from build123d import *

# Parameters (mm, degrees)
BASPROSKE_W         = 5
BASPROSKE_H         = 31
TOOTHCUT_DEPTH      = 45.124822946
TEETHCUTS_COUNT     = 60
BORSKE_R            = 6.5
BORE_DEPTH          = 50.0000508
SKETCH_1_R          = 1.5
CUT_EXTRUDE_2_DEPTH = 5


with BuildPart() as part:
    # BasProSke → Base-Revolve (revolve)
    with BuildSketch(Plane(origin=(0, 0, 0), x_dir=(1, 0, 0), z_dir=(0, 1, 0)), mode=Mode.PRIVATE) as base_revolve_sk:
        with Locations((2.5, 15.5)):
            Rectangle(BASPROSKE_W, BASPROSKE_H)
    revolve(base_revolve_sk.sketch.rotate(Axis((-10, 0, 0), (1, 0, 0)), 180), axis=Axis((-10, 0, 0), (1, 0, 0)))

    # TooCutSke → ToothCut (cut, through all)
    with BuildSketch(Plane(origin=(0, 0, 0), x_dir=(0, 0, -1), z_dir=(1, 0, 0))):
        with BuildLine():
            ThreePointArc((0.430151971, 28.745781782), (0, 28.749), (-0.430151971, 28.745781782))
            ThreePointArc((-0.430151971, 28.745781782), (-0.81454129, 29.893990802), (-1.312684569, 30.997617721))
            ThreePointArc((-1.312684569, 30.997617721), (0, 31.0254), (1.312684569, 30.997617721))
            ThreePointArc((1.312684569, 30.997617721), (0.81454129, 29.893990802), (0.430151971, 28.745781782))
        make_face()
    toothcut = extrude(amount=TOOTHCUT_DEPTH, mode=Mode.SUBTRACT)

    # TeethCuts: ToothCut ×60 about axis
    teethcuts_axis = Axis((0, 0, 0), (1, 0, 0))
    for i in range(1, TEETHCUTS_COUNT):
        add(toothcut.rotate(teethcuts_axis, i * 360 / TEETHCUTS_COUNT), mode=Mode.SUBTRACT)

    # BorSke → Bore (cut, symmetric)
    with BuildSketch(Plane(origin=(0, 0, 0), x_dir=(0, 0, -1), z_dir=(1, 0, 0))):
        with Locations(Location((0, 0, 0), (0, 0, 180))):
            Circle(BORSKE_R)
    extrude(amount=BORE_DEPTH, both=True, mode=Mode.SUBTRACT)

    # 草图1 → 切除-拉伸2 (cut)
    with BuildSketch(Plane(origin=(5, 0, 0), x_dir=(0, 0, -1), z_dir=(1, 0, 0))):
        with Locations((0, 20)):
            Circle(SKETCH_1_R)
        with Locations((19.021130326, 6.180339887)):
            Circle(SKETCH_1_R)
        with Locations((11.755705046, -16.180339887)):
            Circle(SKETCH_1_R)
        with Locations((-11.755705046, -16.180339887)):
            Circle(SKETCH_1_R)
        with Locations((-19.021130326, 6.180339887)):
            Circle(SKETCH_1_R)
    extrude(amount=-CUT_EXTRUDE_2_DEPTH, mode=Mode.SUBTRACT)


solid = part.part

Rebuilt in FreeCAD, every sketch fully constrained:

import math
import FreeCAD as App
import Part
import Sketcher

V = App.Vector


def add_polygon(sketch, points):
    """Adds a closed chain of lines whose ends are joined by coincident constraints."""
    first, n = sketch.GeometryCount, len(points)
    for a, b in zip(points, points[1:] + points[:1]):
        sketch.addGeometry(Part.LineSegment(App.Vector(*a, 0), App.Vector(*b, 0)), False)
    for i in range(n):
        sketch.addConstraint(Sketcher.Constraint("Coincident", first + i, 2, first + (i + 1) % n, 1))

doc = App.newDocument("Part")
body = doc.addObject("PartDesign::Body", "Body")

# Sketch on XZ plane
sketch1 = body.newObject("Sketcher::SketchObject", "Sketch")
sketch1.AttachmentSupport = (doc.getObject("XZ_Plane"), [""])
sketch1.MapMode = "FlatFace"
add_polygon(sketch1, [(0, -31), (0, 0), (5, 0), (5, -31)])  # lines 0-3
sketch1.addConstraint([
    Sketcher.Constraint("Vertical", 0),
    Sketcher.Constraint("Horizontal", 1),
    Sketcher.Constraint("Vertical", 2),
    Sketcher.Constraint("Horizontal", 3),
    Sketcher.Constraint("Coincident", 0, 2, -1, 1),
    Sketcher.Constraint("DistanceX", 1, 1, 1, 2, 5.0),
    Sketcher.Constraint("DistanceY", 0, 1, 0, 2, 31.0),
])
revolution = body.newObject("PartDesign::Revolution", "Revolution")
revolution.Profile = sketch1
revolution.ReferenceAxis = (sketch1, ["H_Axis"])
revolution.Angle = 360

# Sketch on YZ plane
sketch2 = body.newObject("Sketcher::SketchObject", "Sketch001")
sketch2.AttachmentSupport = (doc.getObject("YZ_Plane"), [""])
sketch2.MapMode = "FlatFace"
sketch2.addGeometry([
    Part.ArcOfCircle(Part.Circle(V(0, 0, 0), V(0, 0, 1), 28.7), math.radians(-0.86), math.radians(0.86)),
    Part.ArcOfCircle(Part.Circle(V(25.5, -12, 0), V(0, 0, 1), 12), math.radians(62.82), math.radians(74.38)),
    Part.ArcOfCircle(Part.Circle(V(0, 0, 0), V(0, 0, 1), 31), math.radians(-2.42), math.radians(2.42)),
    Part.ArcOfCircle(Part.Circle(V(25.5, 12, 0), V(0, 0, 1), 12), math.radians(-74.38), math.radians(-62.82)),
], False)
sketch2.addConstraint([
    Sketcher.Constraint("Coincident", 0, 1, 1, 2),
    Sketcher.Constraint("Coincident", 1, 1, 2, 1),
    Sketcher.Constraint("Coincident", 2, 2, 3, 2),
    Sketcher.Constraint("Coincident", 3, 1, 0, 2),
    Sketcher.Constraint("Coincident", 0, 3, -1, 1),
    Sketcher.Constraint("Coincident", 2, 3, -1, 1),
    Sketcher.Constraint("Equal", 1, 3),
    Sketcher.Constraint("Symmetric", 1, 3, 3, 3, -1),
    Sketcher.Constraint("Radius", 1, 12.0),
    Sketcher.Constraint("Radius", 2, 31.0254),
    Sketcher.Constraint("Radius", 0, 28.748996),
    Sketcher.Constraint("DistanceY", 1, 3, -1, 1, 11.98713),
    Sketcher.Constraint("DistanceY", 0, 1, -1, 1, 0.430152),
])
pocket1 = body.newObject("PartDesign::Pocket", "Pocket")
pocket1.Profile = sketch2
pocket1.Type = "ThroughAll"
pocket1.Reversed = True
doc.recompute()

polarpattern = body.newObject("PartDesign::PolarPattern", "PolarPattern")
polarpattern.Originals = [pocket1]
polarpattern.Axis = (doc.getObject("X_Axis"), [""])
polarpattern.Angle = 360
polarpattern.Occurrences = 60
body.Tip = polarpattern

# Sketch on YZ plane
sketch3 = body.newObject("Sketcher::SketchObject", "Sketch002")
sketch3.AttachmentSupport = (doc.getObject("YZ_Plane"), [""])
sketch3.MapMode = "FlatFace"
sketch3.addGeometry(Part.Circle(V(0, 0, 0), V(0, 0, 1), 6), False)
sketch3.addConstraint([
    Sketcher.Constraint("Coincident", 0, 3, -1, 1),
    Sketcher.Constraint("Diameter", 0, 13.0),
])
pocket2 = body.newObject("PartDesign::Pocket", "Pocket001")
pocket2.Profile = sketch3
pocket2.Length = 100.000102
pocket2.Midplane = True

# Sketch on YZ plane
sketch4 = body.newObject("Sketcher::SketchObject", "Sketch003")
sketch4.AttachmentSupport = (doc.getObject("YZ_Plane"), [""])
sketch4.MapMode = "FlatFace"
sketch4.AttachmentOffset = App.Placement(V(0, 0, 5), App.Rotation())
sketch4.addGeometry([
    Part.Circle(V(20, 0, 0), V(0, 0, 1), 1.5),  # 0
    Part.Circle(V(6.2, -19, 0), V(0, 0, 1), 1.5),  # 1
    Part.Circle(V(-16.2, -11.8, 0), V(0, 0, 1), 1.5),  # 2
    Part.Circle(V(-16.2, 11.8, 0), V(0, 0, 1), 1.5),  # 3
    Part.Circle(V(6.2, 19, 0), V(0, 0, 1), 1.5),  # 4
], False)
sketch4.addConstraint([
    Sketcher.Constraint("Equal", 0, 1),
    Sketcher.Constraint("Equal", 1, 2),
    Sketcher.Constraint("Equal", 2, 3),
    Sketcher.Constraint("Equal", 3, 4),
    Sketcher.Constraint("Symmetric", 2, 3, 3, 3, -1),
    Sketcher.Constraint("Symmetric", 1, 3, 4, 3, -1),
    Sketcher.Constraint("PointOnObject", 0, 3, -1),
    Sketcher.Constraint("Diameter", 0, 3.0),
    Sketcher.Constraint("DistanceX", -1, 1, 0, 3, 20.0),
    Sketcher.Constraint("DistanceX", -1, 1, 1, 3, 6.18034),
    Sketcher.Constraint("DistanceY", 1, 3, -1, 1, 19.02113),
    Sketcher.Constraint("DistanceX", 2, 3, -1, 1, 16.18034),
    Sketcher.Constraint("DistanceY", 2, 3, 3, 3, 23.51141),
])
pocket3 = body.newObject("PartDesign::Pocket", "Pocket002")
pocket3.Profile = sketch4
pocket3.Length = 5

doc.recompute()
